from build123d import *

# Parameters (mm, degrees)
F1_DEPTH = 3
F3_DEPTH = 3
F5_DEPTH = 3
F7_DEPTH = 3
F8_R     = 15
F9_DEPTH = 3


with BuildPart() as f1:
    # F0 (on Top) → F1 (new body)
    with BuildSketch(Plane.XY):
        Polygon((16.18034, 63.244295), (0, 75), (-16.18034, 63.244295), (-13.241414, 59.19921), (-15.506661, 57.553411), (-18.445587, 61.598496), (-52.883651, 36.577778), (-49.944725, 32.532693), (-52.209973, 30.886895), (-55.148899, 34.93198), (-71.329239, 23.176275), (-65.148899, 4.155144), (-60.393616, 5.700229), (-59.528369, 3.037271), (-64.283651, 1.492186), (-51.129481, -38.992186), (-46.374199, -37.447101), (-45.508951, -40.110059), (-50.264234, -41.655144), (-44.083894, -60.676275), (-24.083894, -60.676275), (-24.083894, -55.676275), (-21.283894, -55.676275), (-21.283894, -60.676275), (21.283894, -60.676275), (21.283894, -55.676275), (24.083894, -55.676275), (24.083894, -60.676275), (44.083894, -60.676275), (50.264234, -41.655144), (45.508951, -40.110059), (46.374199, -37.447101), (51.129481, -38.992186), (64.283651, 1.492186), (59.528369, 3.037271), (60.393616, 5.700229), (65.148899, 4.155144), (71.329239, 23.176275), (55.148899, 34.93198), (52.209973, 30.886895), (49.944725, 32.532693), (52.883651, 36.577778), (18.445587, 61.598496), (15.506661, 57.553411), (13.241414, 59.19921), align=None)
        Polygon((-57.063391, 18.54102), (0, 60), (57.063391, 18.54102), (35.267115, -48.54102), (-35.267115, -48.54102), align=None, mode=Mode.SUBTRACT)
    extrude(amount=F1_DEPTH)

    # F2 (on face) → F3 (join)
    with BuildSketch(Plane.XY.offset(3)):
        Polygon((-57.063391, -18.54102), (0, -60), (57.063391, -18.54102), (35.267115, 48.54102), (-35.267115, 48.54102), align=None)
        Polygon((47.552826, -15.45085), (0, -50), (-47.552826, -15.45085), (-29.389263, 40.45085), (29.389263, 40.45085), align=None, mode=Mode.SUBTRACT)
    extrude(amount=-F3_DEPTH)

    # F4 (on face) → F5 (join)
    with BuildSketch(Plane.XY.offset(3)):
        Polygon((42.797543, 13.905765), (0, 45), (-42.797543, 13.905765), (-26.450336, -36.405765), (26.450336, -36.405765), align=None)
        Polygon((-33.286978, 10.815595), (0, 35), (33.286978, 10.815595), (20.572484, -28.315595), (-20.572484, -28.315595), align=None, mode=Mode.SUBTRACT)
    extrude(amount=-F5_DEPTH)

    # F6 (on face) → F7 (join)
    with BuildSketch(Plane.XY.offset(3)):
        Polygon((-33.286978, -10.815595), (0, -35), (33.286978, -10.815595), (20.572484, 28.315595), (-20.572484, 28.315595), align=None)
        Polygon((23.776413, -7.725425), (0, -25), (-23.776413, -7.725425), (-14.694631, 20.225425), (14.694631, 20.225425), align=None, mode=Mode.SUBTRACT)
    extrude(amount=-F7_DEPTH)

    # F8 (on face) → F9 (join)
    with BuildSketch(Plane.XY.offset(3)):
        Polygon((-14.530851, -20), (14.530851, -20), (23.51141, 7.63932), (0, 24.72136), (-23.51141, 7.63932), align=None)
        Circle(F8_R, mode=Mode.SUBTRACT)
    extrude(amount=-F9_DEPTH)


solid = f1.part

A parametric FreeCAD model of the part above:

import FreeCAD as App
import Part
import Sketcher

V = App.Vector
Q = App.Units.Quantity

doc = App.newDocument("Part")
body = doc.addObject("PartDesign::Body", "Body")

# Sketch on XY plane
sketch1 = body.newObject("Sketcher::SketchObject", "Sketch")
sketch1.AttachmentSupport = (doc.getObject("XY_Plane"), [""])
sketch1.MapMode = "FlatFace"
sketch1.addGeometry([
    Part.LineSegment(V(16.2, 63.2, 0), V(0, 75, 0)),  # 0
    Part.LineSegment(V(0, 75, 0), V(-16.2, 63.2, 0)),  # 1
    Part.LineSegment(V(-16.2, 63.2, 0), V(-13.2, 59.2, 0)),  # 2
    Part.LineSegment(V(-13.2, 59.2, 0), V(-15.5, 57.6, 0)),  # 3
    Part.LineSegment(V(-15.5, 57.6, 0), V(-18.4, 61.6, 0)),  # 4
    Part.LineSegment(V(-18.4, 61.6, 0), V(-52.9, 36.6, 0)),  # 5
    Part.LineSegment(V(-52.9, 36.6, 0), V(-49.9, 32.5, 0)),  # 6
    Part.LineSegment(V(-49.9, 32.5, 0), V(-52.2, 30.9, 0)),  # 7
    Part.LineSegment(V(-52.2, 30.9, 0), V(-55.1, 34.9, 0)),  # 8
    Part.LineSegment(V(-55.1, 34.9, 0), V(-71.3, 23.2, 0)),  # 9
    Part.LineSegment(V(-71.3, 23.2, 0), V(-65.1, 4.2, 0)),  # 10
    Part.LineSegment(V(-65.1, 4.2, 0), V(-60.4, 5.7, 0)),  # 11
    Part.LineSegment(V(-60.4, 5.7, 0), V(-59.5, 3, 0)),  # 12
    Part.LineSegment(V(-59.5, 3, 0), V(-64.3, 1.5, 0)),  # 13
    Part.LineSegment(V(-64.3, 1.5, 0), V(-51.1, -39, 0)),  # 14
    Part.LineSegment(V(-51.1, -39, 0), V(-46.4, -37.4, 0)),  # 15
    Part.LineSegment(V(-46.4, -37.4, 0), V(-45.5, -40.1, 0)),  # 16
    Part.LineSegment(V(-45.5, -40.1, 0), V(-50.3, -41.7, 0)),  # 17
    Part.LineSegment(V(-50.3, -41.7, 0), V(-44.1, -60.7, 0)),  # 18
    Part.LineSegment(V(-44.1, -60.7, 0), V(-24.1, -60.7, 0)),  # 19
    Part.LineSegment(V(-24.1, -60.7, 0), V(-24.1, -55.7, 0)),  # 20
    Part.LineSegment(V(-24.1, -55.7, 0), V(-21.3, -55.7, 0)),  # 21
    Part.LineSegment(V(-21.3, -55.7, 0), V(-21.3, -60.7, 0)),  # 22
    Part.LineSegment(V(-21.3, -60.7, 0), V(21.3, -60.7, 0)),  # 23
    Part.LineSegment(V(21.3, -60.7, 0), V(21.3, -55.7, 0)),  # 24
    Part.LineSegment(V(21.3, -55.7, 0), V(24.1, -55.7, 0)),  # 25
    Part.LineSegment(V(24.1, -55.7, 0), V(24.1, -60.7, 0)),  # 26
    Part.LineSegment(V(24.1, -60.7, 0), V(44.1, -60.7, 0)),  # 27
    Part.LineSegment(V(44.1, -60.7, 0), V(50.3, -41.7, 0)),  # 28
    Part.LineSegment(V(50.3, -41.7, 0), V(45.5, -40.1, 0)),  # 29
    Part.LineSegment(V(45.5, -40.1, 0), V(46.4, -37.4, 0)),  # 30
    Part.LineSegment(V(46.4, -37.4, 0), V(51.1, -39, 0)),  # 31
    Part.LineSegment(V(51.1, -39, 0), V(64.3, 1.5, 0)),  # 32
    Part.LineSegment(V(64.3, 1.5, 0), V(59.5, 3, 0)),  # 33
    Part.LineSegment(V(59.5, 3, 0), V(60.4, 5.7, 0)),  # 34
    Part.LineSegment(V(60.4, 5.7, 0), V(65.1, 4.2, 0)),  # 35
    Part.LineSegment(V(65.1, 4.2, 0), V(71.3, 23.2, 0)),  # 36
    Part.LineSegment(V(71.3, 23.2, 0), V(55.1, 34.9, 0)),  # 37
    Part.LineSegment(V(55.1, 34.9, 0), V(52.2, 30.9, 0)),  # 38
    Part.LineSegment(V(52.2, 30.9, 0), V(49.9, 32.5, 0)),  # 39
    Part.LineSegment(V(49.9, 32.5, 0), V(52.9, 36.6, 0)),  # 40
    Part.LineSegment(V(52.9, 36.6, 0), V(18.4, 61.6, 0)),  # 41
    Part.LineSegment(V(18.4, 61.6, 0), V(15.5, 57.6, 0)),  # 42
    Part.LineSegment(V(15.5, 57.6, 0), V(13.2, 59.2, 0)),  # 43
    Part.LineSegment(V(13.2, 59.2, 0), V(16.2, 63.2, 0)),  # 44
    Part.LineSegment(V(-35.3, -48.5, 0), V(-57.1, 18.5, 0)),  # 45
    Part.LineSegment(V(-57.1, 18.5, 0), V(0, 60, 0)),  # 46
    Part.LineSegment(V(0, 60, 0), V(57.1, 18.5, 0)),  # 47
    Part.LineSegment(V(57.1, 18.5, 0), V(35.3, -48.5, 0)),  # 48
    Part.LineSegment(V(35.3, -48.5, 0), V(-35.3, -48.5, 0)),  # 49
], False)
sketch1.addConstraint([
    Sketcher.Constraint("Coincident", 0, 2, 1, 1),
    Sketcher.Constraint("Coincident", 1, 2, 2, 1),
    Sketcher.Constraint("Coincident", 2, 2, 3, 1),
    Sketcher.Constraint("Coincident", 3, 2, 4, 1),
    Sketcher.Constraint("Coincident", 4, 2, 5, 1),
    Sketcher.Constraint("Coincident", 5, 2, 6, 1),
    Sketcher.Constraint("Coincident", 6, 2, 7, 1),
    Sketcher.Constraint("Coincident", 7, 2, 8, 1),
    Sketcher.Constraint("Coincident", 8, 2, 9, 1),
    Sketcher.Constraint("Coincident", 9, 2, 10, 1),
    Sketcher.Constraint("Coincident", 10, 2, 11, 1),
    Sketcher.Constraint("Coincident", 11, 2, 12, 1),
    Sketcher.Constraint("Coincident", 12, 2, 13, 1),
    Sketcher.Constraint("Coincident", 13, 2, 14, 1),
    Sketcher.Constraint("Coincident", 14, 2, 15, 1),
    Sketcher.Constraint("Coincident", 15, 2, 16, 1),
    Sketcher.Constraint("Coincident", 16, 2, 17, 1),
    Sketcher.Constraint("Coincident", 17, 2, 18, 1),
    Sketcher.Constraint("Coincident", 18, 2, 19, 1),
    Sketcher.Constraint("Coincident", 19, 2, 20, 1),
    Sketcher.Constraint("Coincident", 20, 2, 21, 1),
    Sketcher.Constraint("Coincident", 21, 2, 22, 1),
    Sketcher.Constraint("Coincident", 22, 2, 23, 1),
    Sketcher.Constraint("Coincident", 23, 2, 24, 1),
    Sketcher.Constraint("Coincident", 24, 2, 25, 1),
    Sketcher.Constraint("Coincident", 25, 2, 26, 1),
    Sketcher.Constraint("Coincident", 26, 2, 27, 1),
    Sketcher.Constraint("Coincident", 27, 2, 28, 1),
    Sketcher.Constraint("Coincident", 28, 2, 29, 1),
    Sketcher.Constraint("Coincident", 29, 2, 30, 1),
    Sketcher.Constraint("Coincident", 30, 2, 31, 1),
    Sketcher.Constraint("Coincident", 31, 2, 32, 1),
    Sketcher.Constraint("Coincident", 32, 2, 33, 1),
    Sketcher.Constraint("Coincident", 33, 2, 34, 1),
    Sketcher.Constraint("Coincident", 34, 2, 35, 1),
    Sketcher.Constraint("Coincident", 35, 2, 36, 1),
    Sketcher.Constraint("Coincident", 36, 2, 37, 1),
    Sketcher.Constraint("Coincident", 37, 2, 38, 1),
    Sketcher.Constraint("Coincident", 38, 2, 39, 1),
    Sketcher.Constraint("Coincident", 39, 2, 40, 1),
    Sketcher.Constraint("Coincident", 40, 2, 41, 1),
    Sketcher.Constraint("Coincident", 41, 2, 42, 1),
    Sketcher.Constraint("Coincident", 42, 2, 43, 1),
    Sketcher.Constraint("Coincident", 43, 2, 44, 1),
    Sketcher.Constraint("Coincident", 44, 2, 0, 1),
    Sketcher.Constraint("Coincident", 45, 2, 46, 1),
    Sketcher.Constraint("Coincident", 46, 2, 47, 1),
    Sketcher.Constraint("Coincident", 47, 2, 48, 1),
    Sketcher.Constraint("Coincident", 48, 2, 49, 1),
    Sketcher.Constraint("Coincident", 49, 2, 45, 1),
    Sketcher.Constraint("Horizontal", 19),
    Sketcher.Constraint("Vertical", 20),
    Sketcher.Constraint("Horizontal", 21),
    Sketcher.Constraint("Vertical", 22),
    Sketcher.Constraint("Horizontal", 23),
    Sketcher.Constraint("Vertical", 24),
    Sketcher.Constraint("Horizontal", 25),
    Sketcher.Constraint("Vertical", 26),
    Sketcher.Constraint("Horizontal", 27),
    Sketcher.Constraint("Horizontal", 49),
    Sketcher.Constraint("Symmetric", 21, 2, 24, 2, -2),
    Sketcher.Constraint("Symmetric", 19, 2, 26, 2, -2),
    Sketcher.Constraint("Symmetric", 17, 2, 28, 2, -2),
    Sketcher.Constraint("Symmetric", 16, 2, 29, 2, -2),
    Sketcher.Constraint("Symmetric", 15, 2, 30, 2, -2),
    Sketcher.Constraint("Symmetric", 14, 2, 31, 2, -2),
    Sketcher.Constraint("Symmetric", 13, 2, 32, 2, -2),
    Sketcher.Constraint("Symmetric", 12, 2, 33, 2, -2),
    Sketcher.Constraint("Symmetric", 11, 2, 34, 2, -2),
    Sketcher.Constraint("Symmetric", 10, 2, 35, 2, -2),
    Sketcher.Constraint("Symmetric", 9, 2, 36, 2, -2),
    Sketcher.Constraint("Symmetric", 8, 2, 37, 2, -2),
    Sketcher.Constraint("Symmetric", 7, 2, 38, 2, -2),
    Sketcher.Constraint("Symmetric", 6, 2, 39, 2, -2),
    Sketcher.Constraint("Symmetric", 5, 2, 40, 2, -2),
    Sketcher.Constraint("Symmetric", 4, 2, 41, 2, -2),
    Sketcher.Constraint("Symmetric", 3, 2, 42, 2, -2),
    Sketcher.Constraint("Symmetric", 2, 2, 43, 2, -2),
    Sketcher.Constraint("Symmetric", 1, 2, 44, 2, -2),
    Sketcher.Constraint("Symmetric", 45, 2, 47, 2, -2),
    Sketcher.Constraint("PointOnObject", 0, 2, -2),
    Sketcher.Constraint("PointOnObject", 46, 2, -2),
    Sketcher.Constraint("Perpendicular", 1, 2),
    Sketcher.Constraint("Perpendicular", 2, 3),
    Sketcher.Constraint("Perpendicular", 3, 4),
    Sketcher.Constraint("Perpendicular", 4, 5),
    Sketcher.Constraint("Perpendicular", 5, 6),
    Sketcher.Constraint("Perpendicular", 6, 7),
    Sketcher.Constraint("Perpendicular", 7, 8),
    Sketcher.Constraint("Perpendicular", 8, 9),
    Sketcher.Constraint("Perpendicular", 10, 11),
    Sketcher.Constraint("Perpendicular", 11, 12),
    Sketcher.Constraint("Perpendicular", 12, 13),
    Sketcher.Constraint("Perpendicular", 13, 14),
    Sketcher.Constraint("Perpendicular", 14, 15),
    Sketcher.Constraint("Perpendicular", 15, 16),
    Sketcher.Constraint("Perpendicular", 16, 17),
    Sketcher.Constraint("Perpendicular", 17, 18),
    Sketcher.Constraint("Perpendicular", 28, 29),
    Sketcher.Constraint("Parallel", 18, 45),
    Sketcher.Constraint("Parallel", 9, 46),
    Sketcher.Constraint("Parallel", 36, 48),
    Sketcher.Constraint("Horizontal", 19, 2, 22, 2),
    Sketcher.Constraint("Equal", 2, 4),
    Sketcher.Constraint("Equal", 4, 6),
    Sketcher.Constraint("Equal", 3, 7),
    Sketcher.Constraint("Equal", 6, 8),
    Sketcher.Constraint("Equal", 1, 9),
    Sketcher.Constraint("Equal", 9, 10),
    Sketcher.Constraint("Equal", 8, 11),
    Sketcher.Constraint("Equal", 7, 12),
    Sketcher.Constraint("Equal", 11, 13),
    Sketcher.Constraint("Equal", 5, 14),
    Sketcher.Constraint("Equal", 13, 15),
    Sketcher.Constraint("Equal", 12, 16),
    Sketcher.Constraint("Equal", 15, 17),
    Sketcher.Constraint("Equal", 10, 18),
    Sketcher.Constraint("Equal", 45, 46),
    Sketcher.Constraint("DistanceX", 19, 1, 19, 2, Q("20 mm")),
    Sketcher.Constraint("DistanceY", 20, 1, 20, 2, Q("5 mm")),
    Sketcher.Constraint("Angle", 0, Q("144 deg")),
    Sketcher.Constraint("Angle", 10, Q("-72 deg")),
    Sketcher.Constraint("Distance", 0, Q("20 mm")),
    Sketcher.Constraint("Distance", 2, Q("5 mm")),
    Sketcher.Constraint("DistanceX", 21, 1, 21, 2, Q("2.8 mm")),
    Sketcher.Constraint("DistanceY", -1, 1, 0, 2, Q("75 mm")),
    Sketcher.Constraint("DistanceY", -1, 1, 46, 2, Q("60 mm")),
    Sketcher.Constraint("Distance", 3, Q("2.8 mm")),
    Sketcher.Constraint("DistanceX", 49, 2, 49, 1, Q("70.53423 mm")),
    Sketcher.Constraint("DistanceX", 8, 2, -1, 1, Q("55.148899 mm")),
])
pad1 = body.newObject("PartDesign::Pad", "Pad")
pad1.Profile = sketch1
pad1.Length = 3

# Sketch on XY plane
sketch2 = body.newObject("Sketcher::SketchObject", "Sketch001")
sketch2.AttachmentSupport = (doc.getObject("XY_Plane"), [""])
sketch2.MapMode = "FlatFace"
sketch2.AttachmentOffset = App.Placement(V(0, 0, 3), App.Rotation())
sketch2.addGeometry([
    Part.LineSegment(V(-57, -19, 0), V(0, -60, 0)),  # 0
    Part.LineSegment(V(0, -60, 0), V(57, -19, 0)),  # 1
    Part.LineSegment(V(57, -19, 0), V(35, 49, 0)),  # 2
    Part.LineSegment(V(35, 49, 0), V(-35, 49, 0)),  # 3
    Part.LineSegment(V(-35, 49, 0), V(-57, -19, 0)),  # 4
    Part.LineSegment(V(29, 40, 0), V(48, -15, 0)),  # 5
    Part.LineSegment(V(48, -15, 0), V(0, -50, 0)),  # 6
    Part.LineSegment(V(0, -50, 0), V(-48, -15, 0)),  # 7
    Part.LineSegment(V(-48, -15, 0), V(-29, 40, 0)),  # 8
    Part.LineSegment(V(-29, 40, 0), V(29, 40, 0)),  # 9
], False)
sketch2.addConstraint([
    Sketcher.Constraint("Coincident", 0, 2, 1, 1),
    Sketcher.Constraint("Coincident", 1, 2, 2, 1),
    Sketcher.Constraint("Coincident", 2, 2, 3, 1),
    Sketcher.Constraint("Coincident", 3, 2, 4, 1),
    Sketcher.Constraint("Coincident", 4, 2, 0, 1),
    Sketcher.Constraint("Coincident", 5, 2, 6, 1),
    Sketcher.Constraint("Coincident", 6, 2, 7, 1),
    Sketcher.Constraint("Coincident", 7, 2, 8, 1),
    Sketcher.Constraint("Coincident", 8, 2, 9, 1),
    Sketcher.Constraint("Coincident", 9, 2, 5, 1),
    Sketcher.Constraint("Horizontal", 3),
    Sketcher.Constraint("Horizontal", 9),
    Sketcher.Constraint("Symmetric", 1, 2, 4, 2, -2),
    Sketcher.Constraint("Symmetric", 5, 2, 7, 2, -2),
    Sketcher.Constraint("PointOnObject", 0, 2, -2),
    Sketcher.Constraint("PointOnObject", 6, 2, -2),
    Sketcher.Constraint("Parallel", 2, 5),
    Sketcher.Constraint("Parallel", 1, 6),
    Sketcher.Constraint("Parallel", 4, 8),
    Sketcher.Constraint("Equal", 1, 2),
    Sketcher.Constraint("Equal", 2, 4),
    Sketcher.Constraint("Equal", 5, 6),
    Sketcher.Constraint("Angle", 0, Q("-36 deg")),
    Sketcher.Constraint("Angle", 2, Q("108 deg")),
    Sketcher.Constraint("DistanceY", 0, 2, -1, 1, Q("60 mm")),
    Sketcher.Constraint("DistanceY", 6, 2, -1, 1, Q("50 mm")),
    Sketcher.Constraint("DistanceX", 3, 2, 3, 1, Q("70.53423 mm")),
    Sketcher.Constraint("DistanceY", 7, 2, 8, 2, Q("55.9017 mm")),
])
pad2 = body.newObject("PartDesign::Pad", "Pad001")
pad2.Profile = sketch2
pad2.Length = 3
pad2.Reversed = True

# Sketch on XY plane
sketch3 = body.newObject("Sketcher::SketchObject", "Sketch002")
sketch3.AttachmentSupport = (doc.getObject("XY_Plane"), [""])
sketch3.MapMode = "FlatFace"
sketch3.AttachmentOffset = App.Placement(V(0, 0, 3), App.Rotation())
sketch3.addGeometry([
    Part.LineSegment(V(43, 14, 0), V(0, 45, 0)),  # 0
    Part.LineSegment(V(0, 45, 0), V(-43, 14, 0)),  # 1
    Part.LineSegment(V(-43, 14, 0), V(-26, -36, 0)),  # 2
    Part.LineSegment(V(-26, -36, 0), V(26, -36, 0)),  # 3
    Part.LineSegment(V(26, -36, 0), V(43, 14, 0)),  # 4
    Part.LineSegment(V(-21, -28, 0), V(-33, 11, 0)),  # 5
    Part.LineSegment(V(-33, 11, 0), V(0, 35, 0)),  # 6
    Part.LineSegment(V(0, 35, 0), V(33, 11, 0)),  # 7
    Part.LineSegment(V(33, 11, 0), V(21, -28, 0)),  # 8
    Part.LineSegment(V(21, -28, 0), V(-21, -28, 0)),  # 9
], False)
sketch3.addConstraint([
    Sketcher.Constraint("Coincident", 0, 2, 1, 1),
    Sketcher.Constraint("Coincident", 1, 2, 2, 1),
    Sketcher.Constraint("Coincident", 2, 2, 3, 1),
    Sketcher.Constraint("Coincident", 3, 2, 4, 1),
    Sketcher.Constraint("Coincident", 4, 2, 0, 1),
    Sketcher.Constraint("Coincident", 5, 2, 6, 1),
    Sketcher.Constraint("Coincident", 6, 2, 7, 1),
    Sketcher.Constraint("Coincident", 7, 2, 8, 1),
    Sketcher.Constraint("Coincident", 8, 2, 9, 1),
    Sketcher.Constraint("Coincident", 9, 2, 5, 1),
    Sketcher.Constraint("Horizontal", 3),
    Sketcher.Constraint("Horizontal", 9),
    Sketcher.Constraint("Symmetric", 1, 2, 4, 2, -2),
    Sketcher.Constraint("Symmetric", 5, 2, 7, 2, -2),
    Sketcher.Constraint("PointOnObject", 0, 2, -2),
    Sketcher.Constraint("PointOnObject", 6, 2, -2),
    Sketcher.Constraint("Parallel", 2, 5),
    Sketcher.Constraint("Parallel", 1, 6),
    Sketcher.Constraint("Parallel", 4, 8),
    Sketcher.Constraint("Equal", 1, 2),
    Sketcher.Constraint("Equal", 2, 4),
    Sketcher.Constraint("Equal", 5, 6),
    Sketcher.Constraint("Angle", 0, Q("144 deg")),
    Sketcher.Constraint("Angle", 2, Q("-72 deg")),
    Sketcher.Constraint("DistanceY", -1, 1, 0, 2, Q("45 mm")),
    Sketcher.Constraint("DistanceY", -1, 1, 6, 2, Q("35 mm")),
    Sketcher.Constraint("DistanceX", 3, 1, 3, 2, Q("52.900672 mm")),
    Sketcher.Constraint("DistanceX", 9, 2, 9, 1, Q("41.144968 mm")),
])
pad3 = body.newObject("PartDesign::Pad", "Pad002")
pad3.Profile = sketch3
pad3.Length = 3
pad3.Reversed = True

# Sketch on XY plane
sketch4 = body.newObject("Sketcher::SketchObject", "Sketch003")
sketch4.AttachmentSupport = (doc.getObject("XY_Plane"), [""])
sketch4.MapMode = "FlatFace"
sketch4.AttachmentOffset = App.Placement(V(0, 0, 3), App.Rotation())
sketch4.addGeometry([
    Part.LineSegment(V(-33, -11, 0), V(0, -35, 0)),  # 0
    Part.LineSegment(V(0, -35, 0), V(33, -11, 0)),  # 1
    Part.LineSegment(V(33, -11, 0), V(21, 28, 0)),  # 2
    Part.LineSegment(V(21, 28, 0), V(-21, 28, 0)),  # 3
    Part.LineSegment(V(-21, 28, 0), V(-33, -11, 0)),  # 4
    Part.LineSegment(V(15, 20, 0), V(24, -8, 0)),  # 5
    Part.LineSegment(V(24, -8, 0), V(0, -25, 0)),  # 6
    Part.LineSegment(V(0, -25, 0), V(-24, -8, 0)),  # 7
    Part.LineSegment(V(-24, -8, 0), V(-15, 20, 0)),  # 8
    Part.LineSegment(V(-15, 20, 0), V(15, 20, 0)),  # 9
], False)
sketch4.addConstraint([
    Sketcher.Constraint("Coincident", 0, 2, 1, 1),
    Sketcher.Constraint("Coincident", 1, 2, 2, 1),
    Sketcher.Constraint("Coincident", 2, 2, 3, 1),
    Sketcher.Constraint("Coincident", 3, 2, 4, 1),
    Sketcher.Constraint("Coincident", 4, 2, 0, 1),
    Sketcher.Constraint("Coincident", 5, 2, 6, 1),
    Sketcher.Constraint("Coincident", 6, 2, 7, 1),
    Sketcher.Constraint("Coincident", 7, 2, 8, 1),
    Sketcher.Constraint("Coincident", 8, 2, 9, 1),
    Sketcher.Constraint("Coincident", 9, 2, 5, 1),
    Sketcher.Constraint("Horizontal", 3),
    Sketcher.Constraint("Horizontal", 9),
    Sketcher.Constraint("Symmetric", 1, 2, 4, 2, -2),
    Sketcher.Constraint("Symmetric", 5, 2, 7, 2, -2),
    Sketcher.Constraint("PointOnObject", 0, 2, -2),
    Sketcher.Constraint("PointOnObject", 6, 2, -2),
    Sketcher.Constraint("Parallel", 2, 5),
    Sketcher.Constraint("Parallel", 1, 6),
    Sketcher.Constraint("Parallel", 4, 8),
    Sketcher.Constraint("Equal", 1, 2),
    Sketcher.Constraint("Equal", 2, 4),
    Sketcher.Constraint("Equal", 5, 6),
    Sketcher.Constraint("Angle", 0, Q("-36 deg")),
    Sketcher.Constraint("Angle", 2, Q("108 deg")),
    Sketcher.Constraint("DistanceY", 0, 2, -1, 1, Q("35 mm")),
    Sketcher.Constraint("DistanceY", 6, 2, -1, 1, Q("25 mm")),
    Sketcher.Constraint("DistanceX", 9, 1, 9, 2, Q("29.389262 mm")),
    Sketcher.Constraint("DistanceX", 3, 2, 3, 1, Q("41.144968 mm")),
])
pad4 = body.newObject("PartDesign::Pad", "Pad003")
pad4.Profile = sketch4
pad4.Length = 3
pad4.Reversed = True

# Sketch on XY plane
sketch5 = body.newObject("Sketcher::SketchObject", "Sketch004")
sketch5.AttachmentSupport = (doc.getObject("XY_Plane"), [""])
sketch5.MapMode = "FlatFace"
sketch5.AttachmentOffset = App.Placement(V(0, 0, 3), App.Rotation())
sketch5.addGeometry([
    Part.LineSegment(V(-15, -20, 0), V(15, -20, 0)),  # 0
    Part.LineSegment(V(15, -20, 0), V(24, 8, 0)),  # 1
    Part.LineSegment(V(24, 8, 0), V(0, 25, 0)),  # 2
    Part.LineSegment(V(0, 25, 0), V(-24, 8, 0)),  # 3
    Part.LineSegment(V(-24, 8, 0), V(-15, -20, 0)),  # 4
    Part.Circle(V(0, 0, 0), V(0, 0, 1), 15),  # 5
], False)
sketch5.addConstraint([
    Sketcher.Constraint("Coincident", 0, 2, 1, 1),
    Sketcher.Constraint("Coincident", 1, 2, 2, 1),
    Sketcher.Constraint("Coincident", 2, 2, 3, 1),
    Sketcher.Constraint("Coincident", 3, 2, 4, 1),
    Sketcher.Constraint("Coincident", 4, 2, 0, 1),
    Sketcher.Constraint("Horizontal", 0),
    Sketcher.Constraint("Coincident", 5, 3, -1, 1),
    Sketcher.Constraint("Symmetric", 1, 2, 3, 2, -2),
    Sketcher.Constraint("PointOnObject", 2, 2, -2),
    Sketcher.Constraint("Equal", 1, 2),
    Sketcher.Constraint("Equal", 3, 4),
    Sketcher.Constraint("Diameter", 5, Q("30 mm")),
    Sketcher.Constraint("Angle", 1, Q("72.000001 deg")),
    Sketcher.Constraint("Angle", 2, Q("143.999999 deg")),
    Sketcher.Constraint("DistanceY", 0, 2, -1, 1, Q("20 mm")),
    Sketcher.Constraint("Distance", 1, Q("29.061701 mm")),
])
pad5 = body.newObject("PartDesign::Pad", "Pad004")
pad5.Profile = sketch5
pad5.Length = 3
pad5.Reversed = True

doc.recompute()
